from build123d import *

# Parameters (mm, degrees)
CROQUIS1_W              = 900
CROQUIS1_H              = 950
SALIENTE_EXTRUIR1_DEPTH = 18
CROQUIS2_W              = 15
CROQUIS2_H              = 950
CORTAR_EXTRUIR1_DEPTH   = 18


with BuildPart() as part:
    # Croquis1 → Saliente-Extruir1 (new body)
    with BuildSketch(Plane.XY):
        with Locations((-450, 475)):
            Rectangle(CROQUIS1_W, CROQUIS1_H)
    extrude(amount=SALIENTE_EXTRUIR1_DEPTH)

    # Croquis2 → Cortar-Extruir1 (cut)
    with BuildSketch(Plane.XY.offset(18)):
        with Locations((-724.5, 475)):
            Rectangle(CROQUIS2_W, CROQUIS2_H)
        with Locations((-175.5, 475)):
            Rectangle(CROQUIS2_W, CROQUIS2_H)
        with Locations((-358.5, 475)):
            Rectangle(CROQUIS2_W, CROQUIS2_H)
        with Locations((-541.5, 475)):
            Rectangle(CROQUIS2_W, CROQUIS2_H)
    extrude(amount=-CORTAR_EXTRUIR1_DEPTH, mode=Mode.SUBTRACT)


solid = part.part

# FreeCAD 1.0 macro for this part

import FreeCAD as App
import Part
import Sketcher
from FreeCAD import Vector
Q = App.Units.Quantity


def add_polygon(sketch, points):
    """Adds a closed chain of lines whose ends are joined by coincident constraints."""
    first, n = sketch.GeometryCount, len(points)
    for a, b in zip(points, points[1:] + points[:1]):
        sketch.addGeometry(Part.LineSegment(App.Vector(*a, 0), App.Vector(*b, 0)), False)
    for i in range(n):
        sketch.addConstraint(Sketcher.Constraint("Coincident", first + i, 2, first + (i + 1) % n, 1))

doc = App.newDocument("Part")
body = doc.addObject("PartDesign::Body", "Body")
body.AllowCompound = True

# Sketch on XY plane
sketch1 = body.newObject("Sketcher::SketchObject", "Sketch")
sketch1.AttachmentSupport = (doc.getObject("XY_Plane"), [""])
sketch1.MapMode = "FlatFace"
add_polygon(sketch1, [(-900, 950), (-900, 0), (0, 0), (0, 950)])  # lines 0-3
sketch1.addConstraint(Sketcher.Constraint("Vertical", 0))
sketch1.addConstraint(Sketcher.Constraint("Horizontal", 1))
sketch1.addConstraint(Sketcher.Constraint("Vertical", 2))
sketch1.addConstraint(Sketcher.Constraint("Horizontal", 3))
sketch1.addConstraint(Sketcher.Constraint("Coincident", 1, 2, -1, 1))
sketch1.addConstraint(Sketcher.Constraint("DistanceX", 1, 1, 1, 2, Q("900 mm")))
sketch1.addConstraint(Sketcher.Constraint("DistanceY", 0, 2, 0, 1, Q("950 mm")))
pad1 = body.newObject("PartDesign::Pad", "Pad")
pad1.Profile = sketch1
pad1.Length = 18

# Sketch on XY plane
sketch2 = body.newObject("Sketcher::SketchObject", "Sketch001")
sketch2.AttachmentSupport = (doc.getObject("XY_Plane"), [""])
sketch2.MapMode = "FlatFace"
sketch2.AttachmentOffset = App.Placement(Vector(0, 0, 18), App.Rotation())
add_polygon(sketch2, [(-732, 950), (-732, 0), (-717, 0), (-717, 950)])  # lines 0-3
add_polygon(sketch2, [(-183, 950), (-183, 0), (-168, 0), (-168, 950)])  # lines 4-7
add_polygon(sketch2, [(-366, 950), (-366, 0), (-351, 0), (-351, 950)])  # lines 8-11
add_polygon(sketch2, [(-549, 950), (-549, 0), (-534, 0), (-534, 950)])  # lines 12-15
sketch2.addConstraint(Sketcher.Constraint("Vertical", 0))
sketch2.addConstraint(Sketcher.Constraint("Horizontal", 1))
sketch2.addConstraint(Sketcher.Constraint("Vertical", 2))
sketch2.addConstraint(Sketcher.Constraint("Horizontal", 3))
sketch2.addConstraint(Sketcher.Constraint("Vertical", 4))
sketch2.addConstraint(Sketcher.Constraint("Horizontal", 5))
sketch2.addConstraint(Sketcher.Constraint("Vertical", 6))
sketch2.addConstraint(Sketcher.Constraint("Horizontal", 7))
sketch2.addConstraint(Sketcher.Constraint("Vertical", 8))
sketch2.addConstraint(Sketcher.Constraint("Horizontal", 9))
sketch2.addConstraint(Sketcher.Constraint("Vertical", 10))
sketch2.addConstraint(Sketcher.Constraint("Horizontal", 11))
sketch2.addConstraint(Sketcher.Constraint("Vertical", 12))
sketch2.addConstraint(Sketcher.Constraint("Horizontal", 13))
sketch2.addConstraint(Sketcher.Constraint("Vertical", 14))
sketch2.addConstraint(Sketcher.Constraint("Horizontal", 15))
sketch2.addConstraint(Sketcher.Constraint("PointOnObject", 0, 2, -1))
sketch2.addConstraint(Sketcher.Constraint("PointOnObject", 4, 2, -1))
sketch2.addConstraint(Sketcher.Constraint("PointOnObject", 8, 2, -1))
sketch2.addConstraint(Sketcher.Constraint("PointOnObject", 12, 2, -1))
sketch2.addConstraint(Sketcher.Constraint("Horizontal", 3, 2, 6, 2))
sketch2.addConstraint(Sketcher.Constraint("Horizontal", 7, 2, 10, 2))
sketch2.addConstraint(Sketcher.Constraint("Horizontal", 11, 2, 14, 2))
sketch2.addConstraint(Sketcher.Constraint("Equal", 3, 5))
sketch2.addConstraint(Sketcher.Constraint("Equal", 7, 9))
sketch2.addConstraint(Sketcher.Constraint("Equal", 11, 13))
sketch2.addConstraint(Sketcher.Constraint("DistanceX", 1, 1, 1, 2, Q("15 mm")))
sketch2.addConstraint(Sketcher.Constraint("DistanceY", 0, 2, 0, 1, Q("950 mm")))
sketch2.addConstraint(Sketcher.Constraint("DistanceX", 0, 2, -1, 1, Q("732 mm")))
sketch2.addConstraint(Sketcher.Constraint("DistanceX", 4, 2, -1, 1, Q("183 mm")))
sketch2.addConstraint(Sketcher.Constraint("DistanceX", 8, 2, -1, 1, Q("366 mm")))
sketch2.addConstraint(Sketcher.Constraint("DistanceX", 12, 2, -1, 1, Q("549 mm")))
pocket1 = body.newObject("PartDesign::Pocket", "Pocket")
pocket1.Profile = sketch2
pocket1.Length = 18

doc.recompute()
